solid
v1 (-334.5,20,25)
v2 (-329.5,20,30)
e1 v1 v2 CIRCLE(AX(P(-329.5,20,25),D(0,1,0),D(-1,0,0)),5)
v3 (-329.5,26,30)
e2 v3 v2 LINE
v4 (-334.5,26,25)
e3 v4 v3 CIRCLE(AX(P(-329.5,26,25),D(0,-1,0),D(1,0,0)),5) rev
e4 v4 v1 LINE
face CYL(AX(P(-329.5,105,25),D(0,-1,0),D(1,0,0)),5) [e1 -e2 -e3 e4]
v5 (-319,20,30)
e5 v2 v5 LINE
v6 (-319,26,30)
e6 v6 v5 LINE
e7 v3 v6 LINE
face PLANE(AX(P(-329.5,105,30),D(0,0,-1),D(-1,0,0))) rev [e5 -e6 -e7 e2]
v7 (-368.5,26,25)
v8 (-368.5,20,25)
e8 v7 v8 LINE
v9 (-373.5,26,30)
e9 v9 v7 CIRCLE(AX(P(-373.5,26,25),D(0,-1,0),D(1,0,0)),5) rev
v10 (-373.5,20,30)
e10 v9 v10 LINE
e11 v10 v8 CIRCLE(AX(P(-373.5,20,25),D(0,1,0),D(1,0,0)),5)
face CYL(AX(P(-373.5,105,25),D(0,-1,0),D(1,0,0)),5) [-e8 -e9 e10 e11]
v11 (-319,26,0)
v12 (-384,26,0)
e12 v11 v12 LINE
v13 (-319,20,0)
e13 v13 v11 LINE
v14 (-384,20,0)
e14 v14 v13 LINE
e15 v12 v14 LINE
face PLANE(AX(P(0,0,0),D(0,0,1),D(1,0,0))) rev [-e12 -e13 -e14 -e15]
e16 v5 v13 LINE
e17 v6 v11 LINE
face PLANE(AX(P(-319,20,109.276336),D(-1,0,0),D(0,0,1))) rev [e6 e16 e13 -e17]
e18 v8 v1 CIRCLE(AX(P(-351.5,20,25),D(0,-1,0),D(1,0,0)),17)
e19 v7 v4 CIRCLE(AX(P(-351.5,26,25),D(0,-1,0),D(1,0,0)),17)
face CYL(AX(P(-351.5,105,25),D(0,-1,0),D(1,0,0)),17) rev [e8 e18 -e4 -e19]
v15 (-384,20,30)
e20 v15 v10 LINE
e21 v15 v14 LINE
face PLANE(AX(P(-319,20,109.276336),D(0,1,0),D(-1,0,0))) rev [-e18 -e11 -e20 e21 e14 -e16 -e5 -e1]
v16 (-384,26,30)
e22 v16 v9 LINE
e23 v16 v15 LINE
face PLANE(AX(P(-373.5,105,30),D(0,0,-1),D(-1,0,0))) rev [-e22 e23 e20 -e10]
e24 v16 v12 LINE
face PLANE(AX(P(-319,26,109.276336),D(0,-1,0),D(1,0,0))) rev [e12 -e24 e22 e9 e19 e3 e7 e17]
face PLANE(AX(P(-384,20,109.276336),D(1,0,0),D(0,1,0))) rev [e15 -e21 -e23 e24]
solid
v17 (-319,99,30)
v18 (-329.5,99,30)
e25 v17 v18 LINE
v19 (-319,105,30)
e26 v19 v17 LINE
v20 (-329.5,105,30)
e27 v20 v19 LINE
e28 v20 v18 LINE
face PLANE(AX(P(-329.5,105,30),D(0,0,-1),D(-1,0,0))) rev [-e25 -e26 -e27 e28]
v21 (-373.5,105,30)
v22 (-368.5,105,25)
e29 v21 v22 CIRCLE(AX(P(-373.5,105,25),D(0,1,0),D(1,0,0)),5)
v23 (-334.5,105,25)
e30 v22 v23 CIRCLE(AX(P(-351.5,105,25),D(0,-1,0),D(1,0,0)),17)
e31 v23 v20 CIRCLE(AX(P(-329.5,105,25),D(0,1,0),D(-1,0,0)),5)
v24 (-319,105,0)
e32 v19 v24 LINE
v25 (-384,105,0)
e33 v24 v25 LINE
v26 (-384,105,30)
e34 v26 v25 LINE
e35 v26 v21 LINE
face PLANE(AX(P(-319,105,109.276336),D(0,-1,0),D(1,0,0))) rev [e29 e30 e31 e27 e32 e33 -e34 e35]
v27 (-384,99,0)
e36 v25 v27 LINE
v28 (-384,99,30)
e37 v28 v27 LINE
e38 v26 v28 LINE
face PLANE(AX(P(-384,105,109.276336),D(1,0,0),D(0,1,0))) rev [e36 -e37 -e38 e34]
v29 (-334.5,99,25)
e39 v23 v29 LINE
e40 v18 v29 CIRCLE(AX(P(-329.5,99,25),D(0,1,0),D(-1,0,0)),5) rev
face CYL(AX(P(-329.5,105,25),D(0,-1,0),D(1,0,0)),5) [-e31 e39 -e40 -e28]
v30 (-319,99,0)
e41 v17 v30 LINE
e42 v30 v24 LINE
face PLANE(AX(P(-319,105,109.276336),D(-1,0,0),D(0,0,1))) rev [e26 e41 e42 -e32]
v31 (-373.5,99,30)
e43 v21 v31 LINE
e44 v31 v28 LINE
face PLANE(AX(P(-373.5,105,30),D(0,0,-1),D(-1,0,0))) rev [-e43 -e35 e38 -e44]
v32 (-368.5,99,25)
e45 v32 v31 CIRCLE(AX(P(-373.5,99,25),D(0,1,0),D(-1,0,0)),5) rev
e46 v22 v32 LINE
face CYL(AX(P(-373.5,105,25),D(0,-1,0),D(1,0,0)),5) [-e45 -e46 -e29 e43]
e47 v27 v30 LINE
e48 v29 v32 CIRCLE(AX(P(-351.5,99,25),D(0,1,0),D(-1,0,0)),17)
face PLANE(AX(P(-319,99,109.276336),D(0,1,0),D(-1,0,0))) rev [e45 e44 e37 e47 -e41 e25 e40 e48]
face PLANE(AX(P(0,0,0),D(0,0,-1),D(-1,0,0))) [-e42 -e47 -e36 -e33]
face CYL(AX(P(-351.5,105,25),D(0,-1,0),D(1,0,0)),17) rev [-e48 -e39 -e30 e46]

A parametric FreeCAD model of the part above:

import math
import FreeCAD as App
import Part
import Sketcher


def add_polygon(sketch, points):
    """Adds a closed chain of lines whose ends are joined by coincident constraints."""
    first, n = sketch.GeometryCount, len(points)
    for a, b in zip(points, points[1:] + points[:1]):
        sketch.addGeometry(Part.LineSegment(App.Vector(*a, 0), App.Vector(*b, 0)), False)
    for i in range(n):
        sketch.addConstraint(Sketcher.Constraint("Coincident", first + i, 2, first + (i + 1) % n, 1))

doc = App.newDocument("Part")
body = doc.addObject("PartDesign::Body", "Body")

# Sketch on XY plane
sketch1 = doc.addObject("Sketcher::SketchObject", "Sketch")
body.addObject(sketch1)
sketch1.AttachmentSupport = (doc.XY_Plane, [""])
sketch1.MapMode = "FlatFace"
add_polygon(sketch1, [(-384, 26), (-384, 20), (-319, 20), (-319, 26)])  # lines 0-3
sketch1.addConstraint(Sketcher.Constraint("Vertical", 0))
sketch1.addConstraint(Sketcher.Constraint("Horizontal", 1))
sketch1.addConstraint(Sketcher.Constraint("Vertical", 2))
sketch1.addConstraint(Sketcher.Constraint("Horizontal", 3))
sketch1.addConstraint(Sketcher.Constraint("DistanceX", 1, 1, 1, 2, 65.0))
sketch1.addConstraint(Sketcher.Constraint("DistanceY", 0, 2, 0, 1, 6.0))
sketch1.addConstraint(Sketcher.Constraint("DistanceX", 0, 2, -1, 1, 384.0))
sketch1.addConstraint(Sketcher.Constraint("DistanceY", -1, 1, 0, 2, 20.0))
pad1 = doc.addObject("PartDesign::Pad", "Pad")
body.addObject(pad1)
pad1.Profile = sketch1
pad1.Length = 44
body2 = doc.addObject("PartDesign::Body", "Body001")

# Sketch on XY plane
sketch2 = doc.addObject("Sketcher::SketchObject", "Sketch001")
body2.addObject(sketch2)
sketch2.AttachmentSupport = (doc.getObject("XY_Plane001"), [""])
sketch2.MapMode = "FlatFace"
add_polygon(sketch2, [(-384, 105), (-384, 99), (-319, 99), (-319, 105)])  # lines 0-3
sketch2.addConstraint(Sketcher.Constraint("Vertical", 0))
sketch2.addConstraint(Sketcher.Constraint("Horizontal", 1))
sketch2.addConstraint(Sketcher.Constraint("Vertical", 2))
sketch2.addConstraint(Sketcher.Constraint("Horizontal", 3))
sketch2.addConstraint(Sketcher.Constraint("DistanceX", 1, 1, 1, 2, 65.0))
sketch2.addConstraint(Sketcher.Constraint("DistanceY", 0, 2, 0, 1, 6.0))
sketch2.addConstraint(Sketcher.Constraint("DistanceX", 0, 2, -1, 1, 384.0))
sketch2.addConstraint(Sketcher.Constraint("DistanceY", -1, 1, 0, 2, 99.0))
pad2 = doc.addObject("PartDesign::Pad", "Pad001")
body2.addObject(pad2)
pad2.Profile = sketch2
pad2.Length = 44
body3 = doc.addObject("PartDesign::Body", "Body002")

# Sketch on XZ plane
sketch3 = doc.addObject("Sketcher::SketchObject", "Sketch002")
body3.addObject(sketch3)
sketch3.AttachmentSupport = (doc.getObject("XZ_Plane002"), [""])
sketch3.MapMode = "FlatFace"
sketch3.AttachmentOffset = App.Placement(App.Vector(0, 0, -20), App.Rotation())
sketch3.addGeometry(Part.LineSegment(App.Vector(-319, 30, 0), App.Vector(-319, 44, 0)), False)
sketch3.addGeometry(Part.LineSegment(App.Vector(-319, 44, 0), App.Vector(-384, 44, 0)), False)
sketch3.addGeometry(Part.LineSegment(App.Vector(-384, 44, 0), App.Vector(-384, 30, 0)), False)
sketch3.addGeometry(Part.LineSegment(App.Vector(-384, 30, 0), App.Vector(-373.5, 30, 0)), False)
sketch3.addGeometry(Part.ArcOfCircle(Part.Circle(App.Vector(-373.5, 25, 0), App.Vector(0, 0, 1), 5), math.radians(0), math.radians(90)), False)
sketch3.addGeometry(Part.ArcOfCircle(Part.Circle(App.Vector(-351.5, 25, 0), App.Vector(0, 0, 1), 17), math.radians(180), math.radians(360)), False)
sketch3.addGeometry(Part.ArcOfCircle(Part.Circle(App.Vector(-329.5, 25, 0), App.Vector(0, 0, 1), 5), math.radians(90), math.radians(180)), False)
sketch3.addGeometry(Part.LineSegment(App.Vector(-329.5, 30, 0), App.Vector(-319, 30, 0)), False)
sketch3.addConstraint(Sketcher.Constraint("Coincident", 0, 2, 1, 1))
sketch3.addConstraint(Sketcher.Constraint("Coincident", 1, 2, 2, 1))
sketch3.addConstraint(Sketcher.Constraint("Coincident", 2, 2, 3, 1))
sketch3.addConstraint(Sketcher.Constraint("Tangent", 3, 2, 4, 2))
sketch3.addConstraint(Sketcher.Constraint("Tangent", 4, 1, 5, 1))
sketch3.addConstraint(Sketcher.Constraint("Tangent", 5, 2, 6, 2))
sketch3.addConstraint(Sketcher.Constraint("Tangent", 6, 1, 7, 1))
sketch3.addConstraint(Sketcher.Constraint("Coincident", 7, 2, 0, 1))
sketch3.addConstraint(Sketcher.Constraint("Vertical", 0))
sketch3.addConstraint(Sketcher.Constraint("Horizontal", 1))
sketch3.addConstraint(Sketcher.Constraint("Vertical", 2))
sketch3.addConstraint(Sketcher.Constraint("Horizontal", 3))
sketch3.addConstraint(Sketcher.Constraint("Horizontal", 7))
sketch3.addConstraint(Sketcher.Constraint("Equal", 4, 6))
sketch3.addConstraint(Sketcher.Constraint("Horizontal", 4, 3, 5, 3))
sketch3.addConstraint(Sketcher.Constraint("Horizontal", 5, 3, 6, 3))
sketch3.addConstraint(Sketcher.Constraint("Equal", 3, 7))
sketch3.addConstraint(Sketcher.Constraint("Radius", 4, 5.0))
sketch3.addConstraint(Sketcher.Constraint("Radius", 5, 17.0))
sketch3.addConstraint(Sketcher.Constraint("DistanceX", 1, 2, 1, 1, 65.0))
sketch3.addConstraint(Sketcher.Constraint("DistanceY", 0, 1, 0, 2, 14.0))
sketch3.addConstraint(Sketcher.Constraint("DistanceY", -1, 1, 4, 3, 25.0))
sketch3.addConstraint(Sketcher.Constraint("DistanceX", 0, 2, -1, 1, 319.0))
pad3 = doc.addObject("PartDesign::Pad", "Pad002")
body3.addObject(pad3)
pad3.Profile = sketch3
pad3.Length = 396.748658
pad3.Reversed = True
doc.recompute()

body4 = doc.addObject("PartDesign::Body", "Body003")
body4.BaseFeature = body3
boolean = doc.addObject("PartDesign::Boolean", "Boolean")
body.addObject(boolean)
boolean.Type = "Cut"
boolean.addObjects([body4])
doc.recompute()

boolean2 = doc.addObject("PartDesign::Boolean", "Boolean001")
body2.addObject(boolean2)
boolean2.Type = "Cut"
boolean2.addObjects([body3])

doc.recompute()
